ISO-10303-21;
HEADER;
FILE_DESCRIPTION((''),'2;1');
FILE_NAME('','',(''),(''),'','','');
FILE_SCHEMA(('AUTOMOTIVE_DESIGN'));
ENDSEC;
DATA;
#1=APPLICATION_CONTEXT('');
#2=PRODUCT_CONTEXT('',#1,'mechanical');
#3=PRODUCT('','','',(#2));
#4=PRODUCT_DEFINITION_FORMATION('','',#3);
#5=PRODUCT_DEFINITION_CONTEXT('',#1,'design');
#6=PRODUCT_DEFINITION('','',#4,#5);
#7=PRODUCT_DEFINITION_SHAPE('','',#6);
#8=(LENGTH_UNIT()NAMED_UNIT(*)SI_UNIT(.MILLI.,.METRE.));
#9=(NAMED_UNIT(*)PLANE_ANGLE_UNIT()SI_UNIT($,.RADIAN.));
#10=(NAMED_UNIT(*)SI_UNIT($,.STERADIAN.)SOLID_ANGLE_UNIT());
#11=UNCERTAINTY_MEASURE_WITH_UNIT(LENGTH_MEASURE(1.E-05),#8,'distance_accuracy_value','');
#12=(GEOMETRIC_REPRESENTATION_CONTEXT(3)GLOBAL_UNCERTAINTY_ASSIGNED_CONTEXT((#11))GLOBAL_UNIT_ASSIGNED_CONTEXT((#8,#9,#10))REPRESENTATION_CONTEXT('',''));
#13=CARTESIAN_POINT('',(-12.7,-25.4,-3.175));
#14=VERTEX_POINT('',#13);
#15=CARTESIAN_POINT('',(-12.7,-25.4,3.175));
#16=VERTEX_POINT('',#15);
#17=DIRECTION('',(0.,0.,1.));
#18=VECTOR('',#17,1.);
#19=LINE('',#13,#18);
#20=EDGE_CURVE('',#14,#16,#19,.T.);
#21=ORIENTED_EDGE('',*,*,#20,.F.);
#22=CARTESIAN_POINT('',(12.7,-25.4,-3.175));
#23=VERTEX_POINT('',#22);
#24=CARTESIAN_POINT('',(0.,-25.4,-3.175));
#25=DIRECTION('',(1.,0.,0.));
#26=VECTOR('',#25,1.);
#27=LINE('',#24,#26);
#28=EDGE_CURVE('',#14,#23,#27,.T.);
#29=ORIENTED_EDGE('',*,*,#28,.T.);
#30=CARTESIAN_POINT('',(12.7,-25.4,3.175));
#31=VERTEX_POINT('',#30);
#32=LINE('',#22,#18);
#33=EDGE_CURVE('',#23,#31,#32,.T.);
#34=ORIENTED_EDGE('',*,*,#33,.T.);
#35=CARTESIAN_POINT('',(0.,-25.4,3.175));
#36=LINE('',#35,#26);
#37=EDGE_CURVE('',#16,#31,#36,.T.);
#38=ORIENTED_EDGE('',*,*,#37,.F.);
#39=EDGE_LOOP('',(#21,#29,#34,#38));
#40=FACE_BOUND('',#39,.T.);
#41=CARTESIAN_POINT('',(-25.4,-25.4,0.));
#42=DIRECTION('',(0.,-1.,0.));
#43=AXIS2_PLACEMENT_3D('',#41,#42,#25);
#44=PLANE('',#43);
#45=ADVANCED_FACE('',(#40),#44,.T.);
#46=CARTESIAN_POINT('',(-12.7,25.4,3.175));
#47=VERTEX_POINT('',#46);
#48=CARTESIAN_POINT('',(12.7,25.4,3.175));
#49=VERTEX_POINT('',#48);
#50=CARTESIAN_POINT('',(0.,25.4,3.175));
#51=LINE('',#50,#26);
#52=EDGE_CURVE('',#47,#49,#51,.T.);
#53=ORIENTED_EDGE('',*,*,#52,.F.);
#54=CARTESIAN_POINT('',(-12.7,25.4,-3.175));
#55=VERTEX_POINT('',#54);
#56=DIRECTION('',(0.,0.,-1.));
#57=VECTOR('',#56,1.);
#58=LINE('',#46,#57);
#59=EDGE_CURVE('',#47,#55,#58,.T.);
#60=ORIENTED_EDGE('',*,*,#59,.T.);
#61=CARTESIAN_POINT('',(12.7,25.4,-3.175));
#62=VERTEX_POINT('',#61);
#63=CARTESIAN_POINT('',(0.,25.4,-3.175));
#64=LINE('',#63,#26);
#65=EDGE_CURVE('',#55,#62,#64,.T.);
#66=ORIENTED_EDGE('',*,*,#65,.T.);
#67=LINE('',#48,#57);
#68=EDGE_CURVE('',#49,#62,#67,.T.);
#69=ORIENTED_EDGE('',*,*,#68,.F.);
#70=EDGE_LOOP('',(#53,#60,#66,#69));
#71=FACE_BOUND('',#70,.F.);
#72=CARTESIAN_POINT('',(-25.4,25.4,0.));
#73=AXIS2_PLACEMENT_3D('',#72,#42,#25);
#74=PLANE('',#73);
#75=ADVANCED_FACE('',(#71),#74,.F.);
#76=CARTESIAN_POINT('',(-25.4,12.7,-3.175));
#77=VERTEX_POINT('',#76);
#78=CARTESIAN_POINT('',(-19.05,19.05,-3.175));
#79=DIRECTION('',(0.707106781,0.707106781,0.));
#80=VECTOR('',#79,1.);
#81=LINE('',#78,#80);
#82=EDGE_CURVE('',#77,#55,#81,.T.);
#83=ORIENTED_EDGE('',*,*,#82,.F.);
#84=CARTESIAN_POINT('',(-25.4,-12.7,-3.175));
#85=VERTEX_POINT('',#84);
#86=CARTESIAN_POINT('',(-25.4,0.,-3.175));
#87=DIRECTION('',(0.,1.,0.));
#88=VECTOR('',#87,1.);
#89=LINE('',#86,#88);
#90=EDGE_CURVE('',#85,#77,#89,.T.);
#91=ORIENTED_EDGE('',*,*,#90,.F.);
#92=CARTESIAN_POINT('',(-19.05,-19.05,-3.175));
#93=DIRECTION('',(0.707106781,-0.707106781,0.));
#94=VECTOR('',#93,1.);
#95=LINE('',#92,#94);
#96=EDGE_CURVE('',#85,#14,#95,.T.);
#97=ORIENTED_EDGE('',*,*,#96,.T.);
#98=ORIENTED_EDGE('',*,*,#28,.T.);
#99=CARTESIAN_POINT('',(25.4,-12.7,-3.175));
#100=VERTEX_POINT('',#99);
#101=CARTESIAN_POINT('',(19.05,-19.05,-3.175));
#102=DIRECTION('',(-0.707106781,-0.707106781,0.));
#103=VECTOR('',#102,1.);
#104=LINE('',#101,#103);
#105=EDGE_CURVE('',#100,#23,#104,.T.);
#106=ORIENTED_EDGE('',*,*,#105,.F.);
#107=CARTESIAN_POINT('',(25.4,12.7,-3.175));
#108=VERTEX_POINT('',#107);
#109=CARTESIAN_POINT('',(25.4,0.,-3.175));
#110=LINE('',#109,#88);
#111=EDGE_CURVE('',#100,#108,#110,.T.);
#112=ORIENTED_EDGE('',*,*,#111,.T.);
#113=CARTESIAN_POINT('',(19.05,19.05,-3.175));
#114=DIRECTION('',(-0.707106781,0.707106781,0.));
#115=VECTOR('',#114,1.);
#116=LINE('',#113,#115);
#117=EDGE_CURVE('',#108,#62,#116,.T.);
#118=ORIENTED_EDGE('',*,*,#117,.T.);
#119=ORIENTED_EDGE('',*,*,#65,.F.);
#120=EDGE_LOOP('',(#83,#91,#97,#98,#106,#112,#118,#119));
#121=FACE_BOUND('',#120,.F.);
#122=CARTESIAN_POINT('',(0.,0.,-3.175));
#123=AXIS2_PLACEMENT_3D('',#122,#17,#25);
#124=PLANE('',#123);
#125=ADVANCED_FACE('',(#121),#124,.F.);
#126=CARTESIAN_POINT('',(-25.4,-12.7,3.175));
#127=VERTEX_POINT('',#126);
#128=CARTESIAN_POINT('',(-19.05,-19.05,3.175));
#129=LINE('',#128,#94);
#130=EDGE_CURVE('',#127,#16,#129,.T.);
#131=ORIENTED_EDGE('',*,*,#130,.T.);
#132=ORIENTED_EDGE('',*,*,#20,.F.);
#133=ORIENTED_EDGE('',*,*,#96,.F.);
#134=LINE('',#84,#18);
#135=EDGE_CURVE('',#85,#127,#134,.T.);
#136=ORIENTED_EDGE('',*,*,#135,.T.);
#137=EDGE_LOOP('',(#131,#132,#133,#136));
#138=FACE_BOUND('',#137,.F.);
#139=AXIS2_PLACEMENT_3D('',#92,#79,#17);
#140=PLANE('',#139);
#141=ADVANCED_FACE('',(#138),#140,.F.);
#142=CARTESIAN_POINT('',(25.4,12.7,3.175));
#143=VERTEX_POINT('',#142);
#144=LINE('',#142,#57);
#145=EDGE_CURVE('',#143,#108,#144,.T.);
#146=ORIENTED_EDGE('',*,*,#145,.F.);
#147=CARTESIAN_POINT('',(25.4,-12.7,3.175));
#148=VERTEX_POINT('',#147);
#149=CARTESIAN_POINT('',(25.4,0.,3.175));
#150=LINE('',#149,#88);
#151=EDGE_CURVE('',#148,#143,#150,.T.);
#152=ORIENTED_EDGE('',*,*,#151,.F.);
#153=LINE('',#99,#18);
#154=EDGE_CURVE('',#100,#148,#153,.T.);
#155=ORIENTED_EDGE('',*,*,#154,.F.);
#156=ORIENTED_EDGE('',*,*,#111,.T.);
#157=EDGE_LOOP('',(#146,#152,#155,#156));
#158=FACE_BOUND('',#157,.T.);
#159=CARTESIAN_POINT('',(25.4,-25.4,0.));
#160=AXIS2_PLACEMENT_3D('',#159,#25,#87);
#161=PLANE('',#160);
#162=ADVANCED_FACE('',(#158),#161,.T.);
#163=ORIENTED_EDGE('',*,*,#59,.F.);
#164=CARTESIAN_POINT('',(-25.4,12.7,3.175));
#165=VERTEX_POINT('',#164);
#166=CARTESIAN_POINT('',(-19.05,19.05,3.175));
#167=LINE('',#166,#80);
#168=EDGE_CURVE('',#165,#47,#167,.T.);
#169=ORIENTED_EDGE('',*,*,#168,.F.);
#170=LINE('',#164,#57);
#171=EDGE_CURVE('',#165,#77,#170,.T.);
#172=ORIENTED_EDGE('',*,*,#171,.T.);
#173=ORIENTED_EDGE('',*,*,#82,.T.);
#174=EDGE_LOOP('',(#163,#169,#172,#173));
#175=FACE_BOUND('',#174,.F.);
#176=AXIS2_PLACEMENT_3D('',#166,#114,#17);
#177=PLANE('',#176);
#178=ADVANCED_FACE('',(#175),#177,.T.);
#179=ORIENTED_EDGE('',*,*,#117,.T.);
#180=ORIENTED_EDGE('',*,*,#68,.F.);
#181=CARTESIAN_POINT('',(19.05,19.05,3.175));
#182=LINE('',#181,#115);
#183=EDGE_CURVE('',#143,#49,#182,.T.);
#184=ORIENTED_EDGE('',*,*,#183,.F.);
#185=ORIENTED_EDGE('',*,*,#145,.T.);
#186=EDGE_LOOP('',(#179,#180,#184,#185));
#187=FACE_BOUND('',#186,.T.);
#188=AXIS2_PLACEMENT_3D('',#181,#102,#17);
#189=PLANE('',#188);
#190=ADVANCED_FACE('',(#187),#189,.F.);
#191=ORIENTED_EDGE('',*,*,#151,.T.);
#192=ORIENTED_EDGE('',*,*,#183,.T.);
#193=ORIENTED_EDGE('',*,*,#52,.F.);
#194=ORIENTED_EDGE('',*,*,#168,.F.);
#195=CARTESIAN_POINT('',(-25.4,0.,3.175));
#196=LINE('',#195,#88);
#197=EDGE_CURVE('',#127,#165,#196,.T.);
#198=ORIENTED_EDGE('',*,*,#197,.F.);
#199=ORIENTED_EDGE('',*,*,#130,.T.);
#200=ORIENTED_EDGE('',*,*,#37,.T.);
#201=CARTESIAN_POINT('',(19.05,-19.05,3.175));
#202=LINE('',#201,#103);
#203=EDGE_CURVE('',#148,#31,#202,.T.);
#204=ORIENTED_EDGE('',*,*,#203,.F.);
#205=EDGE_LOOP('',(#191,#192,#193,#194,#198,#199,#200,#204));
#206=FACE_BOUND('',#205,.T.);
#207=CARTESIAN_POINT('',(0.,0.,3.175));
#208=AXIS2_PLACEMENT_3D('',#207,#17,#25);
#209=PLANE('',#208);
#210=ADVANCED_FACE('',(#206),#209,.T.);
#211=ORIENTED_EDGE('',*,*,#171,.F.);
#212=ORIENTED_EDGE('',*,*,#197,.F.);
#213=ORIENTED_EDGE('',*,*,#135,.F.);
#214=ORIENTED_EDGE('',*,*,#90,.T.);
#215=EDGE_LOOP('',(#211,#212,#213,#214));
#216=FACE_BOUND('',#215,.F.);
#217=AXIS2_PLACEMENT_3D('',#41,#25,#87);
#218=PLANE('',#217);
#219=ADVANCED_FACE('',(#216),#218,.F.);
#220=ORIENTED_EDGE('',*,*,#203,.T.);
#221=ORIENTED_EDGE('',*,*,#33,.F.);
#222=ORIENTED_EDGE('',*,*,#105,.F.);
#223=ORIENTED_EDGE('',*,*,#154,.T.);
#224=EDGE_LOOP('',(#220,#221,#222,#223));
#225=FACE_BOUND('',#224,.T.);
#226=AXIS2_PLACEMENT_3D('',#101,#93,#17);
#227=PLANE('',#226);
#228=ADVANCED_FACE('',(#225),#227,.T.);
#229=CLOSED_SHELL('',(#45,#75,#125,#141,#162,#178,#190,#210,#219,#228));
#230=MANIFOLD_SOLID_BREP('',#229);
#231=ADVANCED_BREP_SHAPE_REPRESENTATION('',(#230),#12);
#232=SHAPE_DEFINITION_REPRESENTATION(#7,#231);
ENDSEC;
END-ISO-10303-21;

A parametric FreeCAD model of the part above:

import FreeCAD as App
import Part
import Sketcher
Q = App.Units.Quantity


def edges_at(feature, points):
    """Names of the edges that pass closest to the given points."""
    edges = feature.Shape.Edges
    near = lambda p: min(range(len(edges)), key=lambda i: edges[i].distToShape(Part.Vertex(*p))[0])
    return sorted({f"Edge{near(p) + 1}" for p in points})

doc = App.newDocument("Part")
params = doc.addObject("Spreadsheet::Sheet", "Params")
for row, (alias, value) in enumerate([
    ("sketch1_width", "2 in"),
    ("pad1_length", "0.25 in"),
    ("chamfer_size", "0.5 in"),
], start=1):
    params.set(f"A{row}", alias)
    params.set(f"B{row}", "=" + value)
    params.setAlias(f"B{row}", alias)

body = doc.addObject("PartDesign::Body", "Body")

# Sketch on XY plane
sketch1 = doc.addObject("Sketcher::SketchObject", "Sketch")
body.addObject(sketch1)
sketch1.AttachmentSupport = (doc.XY_Plane, [""])
sketch1.MapMode = "FlatFace"
sketch1.addGeometry([
    Part.LineSegment(App.Vector(-25, 25, 0), App.Vector(-25, -25, 0)),
    Part.LineSegment(App.Vector(-25, -25, 0), App.Vector(25, -25, 0)),
    Part.LineSegment(App.Vector(25, -25, 0), App.Vector(25, 25, 0)),
    Part.LineSegment(App.Vector(25, 25, 0), App.Vector(-25, 25, 0)),
], False)
sketch1.addConstraint([
    Sketcher.Constraint("Coincident", 0, 2, 1, 1),
    Sketcher.Constraint("Coincident", 1, 2, 2, 1),
    Sketcher.Constraint("Coincident", 2, 2, 3, 1),
    Sketcher.Constraint("Coincident", 3, 2, 0, 1),
    Sketcher.Constraint("Vertical", 0),
    Sketcher.Constraint("Horizontal", 1),
    Sketcher.Constraint("Vertical", 2),
    Sketcher.Constraint("Horizontal", 3),
    Sketcher.Constraint("Symmetric", 0, 2, 2, 2, -1, 1),
    Sketcher.Constraint("Equal", 3, 0),
    Sketcher.Constraint("DistanceX", 1, 1, 1, 2, Q("2 in")),
])
sketch1.setExpression("Constraints[10]", "Params.sketch1_width")
pad1 = doc.addObject("PartDesign::Pad", "Pad")
body.addObject(pad1)
pad1.Profile = sketch1
pad1.setExpression("Length", "Params.pad1_length")
pad1.Midplane = True
doc.recompute()

chamfer = doc.addObject("PartDesign::Chamfer", "Chamfer")
body.addObject(chamfer)
chamfer.Base = (pad1, edges_at(pad1, [
    (-25.4, -25.4, 0),
    (25.4, -25.4, 0),
    (25.4, 25.4, 0),
    (-25.4, 25.4, 0),
]))
chamfer.setExpression("Size", "Params.chamfer_size")

doc.recompute()
